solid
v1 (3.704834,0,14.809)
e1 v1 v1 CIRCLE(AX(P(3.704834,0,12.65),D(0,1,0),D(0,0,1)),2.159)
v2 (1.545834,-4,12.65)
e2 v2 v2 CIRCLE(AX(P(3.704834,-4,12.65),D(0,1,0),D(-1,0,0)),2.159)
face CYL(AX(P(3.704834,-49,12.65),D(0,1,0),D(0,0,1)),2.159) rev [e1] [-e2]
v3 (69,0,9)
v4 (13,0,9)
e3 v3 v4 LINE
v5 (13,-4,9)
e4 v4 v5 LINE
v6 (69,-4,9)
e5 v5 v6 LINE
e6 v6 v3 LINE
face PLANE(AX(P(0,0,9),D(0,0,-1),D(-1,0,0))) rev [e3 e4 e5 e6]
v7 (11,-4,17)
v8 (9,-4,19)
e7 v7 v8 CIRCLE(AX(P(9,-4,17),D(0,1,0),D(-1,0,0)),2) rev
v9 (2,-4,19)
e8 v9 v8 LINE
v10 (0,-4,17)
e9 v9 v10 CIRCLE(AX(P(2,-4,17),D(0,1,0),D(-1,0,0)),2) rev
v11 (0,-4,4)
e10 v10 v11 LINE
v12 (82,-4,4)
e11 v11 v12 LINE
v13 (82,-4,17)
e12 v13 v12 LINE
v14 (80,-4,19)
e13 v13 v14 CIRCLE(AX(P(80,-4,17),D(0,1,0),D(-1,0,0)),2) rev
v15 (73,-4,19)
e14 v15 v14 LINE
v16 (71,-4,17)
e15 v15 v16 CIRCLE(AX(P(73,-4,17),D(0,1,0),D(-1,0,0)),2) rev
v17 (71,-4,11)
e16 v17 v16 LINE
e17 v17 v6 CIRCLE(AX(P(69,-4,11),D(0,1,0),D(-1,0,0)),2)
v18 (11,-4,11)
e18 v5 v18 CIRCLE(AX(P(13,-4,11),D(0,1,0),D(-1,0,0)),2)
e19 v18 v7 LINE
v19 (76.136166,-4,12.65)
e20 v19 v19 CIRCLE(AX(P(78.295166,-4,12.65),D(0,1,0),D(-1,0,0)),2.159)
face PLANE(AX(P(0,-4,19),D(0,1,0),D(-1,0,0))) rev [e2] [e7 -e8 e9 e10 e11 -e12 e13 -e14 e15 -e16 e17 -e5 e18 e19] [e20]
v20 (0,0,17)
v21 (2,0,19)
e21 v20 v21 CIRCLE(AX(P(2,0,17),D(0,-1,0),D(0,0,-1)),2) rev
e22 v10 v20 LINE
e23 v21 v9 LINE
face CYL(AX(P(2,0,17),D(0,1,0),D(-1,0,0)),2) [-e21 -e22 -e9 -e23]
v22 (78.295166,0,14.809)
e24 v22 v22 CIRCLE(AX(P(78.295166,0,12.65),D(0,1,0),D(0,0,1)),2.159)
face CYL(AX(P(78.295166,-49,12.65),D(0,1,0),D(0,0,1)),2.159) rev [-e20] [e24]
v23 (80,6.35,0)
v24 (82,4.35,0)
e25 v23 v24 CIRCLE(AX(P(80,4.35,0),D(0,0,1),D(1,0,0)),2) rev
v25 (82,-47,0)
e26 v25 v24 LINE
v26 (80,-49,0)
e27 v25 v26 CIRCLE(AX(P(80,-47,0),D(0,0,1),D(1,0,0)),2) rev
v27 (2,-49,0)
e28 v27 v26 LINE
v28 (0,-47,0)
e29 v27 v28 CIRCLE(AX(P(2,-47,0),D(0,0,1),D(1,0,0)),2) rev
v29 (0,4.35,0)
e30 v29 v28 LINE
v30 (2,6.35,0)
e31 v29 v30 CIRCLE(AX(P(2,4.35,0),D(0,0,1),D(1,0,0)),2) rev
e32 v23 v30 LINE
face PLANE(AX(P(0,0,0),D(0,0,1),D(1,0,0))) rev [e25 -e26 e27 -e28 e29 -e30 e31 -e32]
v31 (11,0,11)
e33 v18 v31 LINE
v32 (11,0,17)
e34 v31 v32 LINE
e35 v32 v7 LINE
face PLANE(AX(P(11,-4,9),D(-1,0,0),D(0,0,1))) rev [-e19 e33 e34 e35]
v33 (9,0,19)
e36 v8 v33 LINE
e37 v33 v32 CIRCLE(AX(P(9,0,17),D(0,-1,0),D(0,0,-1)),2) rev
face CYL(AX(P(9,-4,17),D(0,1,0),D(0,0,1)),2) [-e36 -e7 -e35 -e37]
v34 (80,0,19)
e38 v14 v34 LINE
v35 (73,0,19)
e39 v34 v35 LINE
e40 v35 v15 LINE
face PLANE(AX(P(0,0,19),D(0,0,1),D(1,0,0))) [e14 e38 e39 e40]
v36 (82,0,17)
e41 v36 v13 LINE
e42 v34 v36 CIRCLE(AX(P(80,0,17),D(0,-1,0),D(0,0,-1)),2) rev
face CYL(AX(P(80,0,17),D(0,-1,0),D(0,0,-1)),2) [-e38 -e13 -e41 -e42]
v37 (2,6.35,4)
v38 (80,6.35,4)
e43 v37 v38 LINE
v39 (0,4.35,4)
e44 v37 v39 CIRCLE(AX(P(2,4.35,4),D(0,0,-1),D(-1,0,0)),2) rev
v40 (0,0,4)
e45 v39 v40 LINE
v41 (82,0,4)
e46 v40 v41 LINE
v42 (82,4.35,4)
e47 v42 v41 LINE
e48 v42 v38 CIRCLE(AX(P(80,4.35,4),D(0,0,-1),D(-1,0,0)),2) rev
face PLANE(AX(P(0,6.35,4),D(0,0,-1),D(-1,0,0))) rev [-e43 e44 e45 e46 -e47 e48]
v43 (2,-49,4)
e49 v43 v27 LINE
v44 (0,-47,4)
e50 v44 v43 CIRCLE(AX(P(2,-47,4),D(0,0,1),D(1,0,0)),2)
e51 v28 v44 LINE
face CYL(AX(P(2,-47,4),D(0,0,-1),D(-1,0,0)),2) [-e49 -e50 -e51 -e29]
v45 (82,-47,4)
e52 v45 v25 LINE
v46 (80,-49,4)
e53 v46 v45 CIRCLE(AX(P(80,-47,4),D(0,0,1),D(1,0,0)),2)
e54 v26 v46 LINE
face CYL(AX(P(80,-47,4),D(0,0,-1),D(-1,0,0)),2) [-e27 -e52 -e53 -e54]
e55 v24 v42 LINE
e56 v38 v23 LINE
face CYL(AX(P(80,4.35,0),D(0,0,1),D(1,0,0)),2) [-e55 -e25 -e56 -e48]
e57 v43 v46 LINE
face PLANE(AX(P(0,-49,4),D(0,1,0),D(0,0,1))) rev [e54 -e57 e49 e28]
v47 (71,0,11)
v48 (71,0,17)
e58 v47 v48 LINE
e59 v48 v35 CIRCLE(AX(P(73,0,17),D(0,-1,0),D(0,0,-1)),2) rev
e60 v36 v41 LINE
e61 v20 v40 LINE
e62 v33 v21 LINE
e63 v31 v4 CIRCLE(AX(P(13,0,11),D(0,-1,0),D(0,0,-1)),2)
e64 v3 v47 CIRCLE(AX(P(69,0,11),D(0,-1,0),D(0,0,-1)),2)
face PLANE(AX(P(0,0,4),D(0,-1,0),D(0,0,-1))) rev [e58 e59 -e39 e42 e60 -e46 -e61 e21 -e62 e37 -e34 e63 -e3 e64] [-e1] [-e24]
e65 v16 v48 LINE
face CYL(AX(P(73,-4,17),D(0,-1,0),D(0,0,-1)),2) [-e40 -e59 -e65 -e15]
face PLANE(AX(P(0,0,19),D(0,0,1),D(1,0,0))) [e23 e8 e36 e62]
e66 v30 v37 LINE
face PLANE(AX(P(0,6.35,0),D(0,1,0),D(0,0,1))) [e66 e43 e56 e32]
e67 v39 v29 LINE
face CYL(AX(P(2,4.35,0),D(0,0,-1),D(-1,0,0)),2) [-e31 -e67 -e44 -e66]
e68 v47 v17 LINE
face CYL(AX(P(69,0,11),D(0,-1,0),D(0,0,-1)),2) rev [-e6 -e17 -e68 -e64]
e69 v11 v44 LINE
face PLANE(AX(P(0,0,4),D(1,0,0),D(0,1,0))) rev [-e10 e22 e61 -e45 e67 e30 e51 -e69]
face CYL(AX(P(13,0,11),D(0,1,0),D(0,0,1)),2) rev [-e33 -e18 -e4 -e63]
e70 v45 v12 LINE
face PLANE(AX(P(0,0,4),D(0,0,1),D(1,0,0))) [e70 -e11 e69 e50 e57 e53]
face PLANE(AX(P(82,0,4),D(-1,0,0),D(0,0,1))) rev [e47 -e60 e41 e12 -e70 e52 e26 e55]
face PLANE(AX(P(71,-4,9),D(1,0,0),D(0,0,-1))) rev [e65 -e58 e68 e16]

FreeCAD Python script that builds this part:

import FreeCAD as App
import Part
import Sketcher
from FreeCAD import Vector


def edges_at(feature, points):
    """Names of the edges that pass closest to the given points."""
    edges = feature.Shape.Edges
    near = lambda p: min(range(len(edges)), key=lambda i: edges[i].distToShape(Part.Vertex(*p))[0])
    return sorted({f"Edge{near(p) + 1}" for p in points})

doc = App.newDocument("Part")
body = doc.addObject("PartDesign::Body", "Body")

# Sketch on XY plane
sketch1 = body.newObject("Sketcher::SketchObject", "Sketch")
sketch1.AttachmentSupport = (doc.getObject("XY_Plane"), [""])
sketch1.MapMode = "FlatFace"
sketch1.addGeometry([
    Part.LineSegment(Vector(0, 0, 0), Vector(0, -49, 0)),
    Part.LineSegment(Vector(0, -49, 0), Vector(82, -49, 0)),
    Part.LineSegment(Vector(82, -49, 0), Vector(82, 0, 0)),
    Part.LineSegment(Vector(82, 0, 0), Vector(0, 0, 0)),
], False)
sketch1.addConstraint([
    Sketcher.Constraint("Coincident", 0, 2, 1, 1),
    Sketcher.Constraint("Coincident", 1, 2, 2, 1),
    Sketcher.Constraint("Coincident", 2, 2, 3, 1),
    Sketcher.Constraint("Coincident", 3, 2, 0, 1),
    Sketcher.Constraint("Vertical", 0),
    Sketcher.Constraint("Horizontal", 1),
    Sketcher.Constraint("Vertical", 2),
    Sketcher.Constraint("Horizontal", 3),
    Sketcher.Constraint("Coincident", 3, 2, -1, 1),
    Sketcher.Constraint("DistanceX", 1, 1, 1, 2, 82.0),
    Sketcher.Constraint("DistanceY", 0, 2, 0, 1, 49.0),
])
pad1 = body.newObject("PartDesign::Pad", "Pad")
pad1.Profile = sketch1
pad1.Length = 4

# Sketch on XY plane
sketch2 = body.newObject("Sketcher::SketchObject", "Sketch001")
sketch2.AttachmentSupport = (doc.getObject("XY_Plane"), [""])
sketch2.MapMode = "FlatFace"
sketch2.AttachmentOffset = App.Placement(Vector(0, 0, 4), App.Rotation())
sketch2.addGeometry([
    Part.LineSegment(Vector(0, 0, 0), Vector(0, -4, 0)),
    Part.LineSegment(Vector(0, -4, 0), Vector(82, -4, 0)),
    Part.LineSegment(Vector(82, -4, 0), Vector(82, 0, 0)),
    Part.LineSegment(Vector(82, 0, 0), Vector(0, 0, 0)),
], False)
sketch2.addConstraint([
    Sketcher.Constraint("Coincident", 0, 2, 1, 1),
    Sketcher.Constraint("Coincident", 1, 2, 2, 1),
    Sketcher.Constraint("Coincident", 2, 2, 3, 1),
    Sketcher.Constraint("Coincident", 3, 2, 0, 1),
    Sketcher.Constraint("Vertical", 0),
    Sketcher.Constraint("Horizontal", 1),
    Sketcher.Constraint("Vertical", 2),
    Sketcher.Constraint("Horizontal", 3),
    Sketcher.Constraint("Coincident", 3, 2, -1, 1),
    Sketcher.Constraint("DistanceX", 1, 1, 1, 2, 82.0),
    Sketcher.Constraint("DistanceY", 0, 2, 0, 1, 4.0),
])
pad2 = body.newObject("PartDesign::Pad", "Pad001")
pad2.Profile = sketch2
pad2.Length = 15

# Sketch on XZ plane
sketch3 = body.newObject("Sketcher::SketchObject", "Sketch002")
sketch3.AttachmentSupport = (doc.getObject("XZ_Plane"), [""])
sketch3.MapMode = "FlatFace"
sketch3.addGeometry([
    Part.Circle(Vector(3.7, 12.7, 0), Vector(0, 0, 1), 2.2),
    Part.Circle(Vector(78.3, 12.7, 0), Vector(0, 0, 1), 2.2),
], False)
sketch3.addConstraint([
    Sketcher.Constraint("Equal", 0, 1),
    Sketcher.Constraint("Horizontal", 0, 3, 1, 3),
    Sketcher.Constraint("Diameter", 0, 4.318),
    Sketcher.Constraint("DistanceY", -1, 1, 0, 3, 12.65),
    Sketcher.Constraint("DistanceX", -1, 1, 0, 3, 3.704834),
    Sketcher.Constraint("DistanceX", -1, 1, 1, 3, 78.295166),
])
pocket1 = body.newObject("PartDesign::Pocket", "Pocket")
pocket1.Profile = sketch3
pocket1.Type = "ThroughAll"
pocket1.Reversed = True

# Sketch on XZ plane
sketch4 = body.newObject("Sketcher::SketchObject", "Sketch003")
sketch4.AttachmentSupport = (doc.getObject("XZ_Plane"), [""])
sketch4.MapMode = "FlatFace"
sketch4.addGeometry([
    Part.LineSegment(Vector(0, 0, 0), Vector(0, 4, 0)),
    Part.LineSegment(Vector(0, 4, 0), Vector(82, 4, 0)),
    Part.LineSegment(Vector(82, 4, 0), Vector(82, 0, 0)),
    Part.LineSegment(Vector(82, 0, 0), Vector(0, 0, 0)),
], False)
sketch4.addConstraint([
    Sketcher.Constraint("Coincident", 0, 2, 1, 1),
    Sketcher.Constraint("Coincident", 1, 2, 2, 1),
    Sketcher.Constraint("Coincident", 2, 2, 3, 1),
    Sketcher.Constraint("Coincident", 3, 2, 0, 1),
    Sketcher.Constraint("Vertical", 0),
    Sketcher.Constraint("Horizontal", 1),
    Sketcher.Constraint("Vertical", 2),
    Sketcher.Constraint("Horizontal", 3),
    Sketcher.Constraint("Coincident", 3, 2, -1, 1),
    Sketcher.Constraint("DistanceX", 1, 1, 1, 2, 82.0),
    Sketcher.Constraint("DistanceY", 0, 1, 0, 2, 4.0),
])
pad3 = body.newObject("PartDesign::Pad", "Pad002")
pad3.Profile = sketch4
pad3.Length = 6.35
pad3.Reversed = True

# Sketch on XY plane
sketch5 = body.newObject("Sketcher::SketchObject", "Sketch004")
sketch5.AttachmentSupport = (doc.getObject("XY_Plane"), [""])
sketch5.MapMode = "FlatFace"
sketch5.AttachmentOffset = App.Placement(Vector(0, 0, 19), App.Rotation())
sketch5.addGeometry([
    Part.LineSegment(Vector(11, 0, 0), Vector(11, -4, 0)),
    Part.LineSegment(Vector(11, -4, 0), Vector(71, -4, 0)),
    Part.LineSegment(Vector(71, -4, 0), Vector(71, 0, 0)),
    Part.LineSegment(Vector(71, 0, 0), Vector(11, 0, 0)),
], False)
sketch5.addConstraint([
    Sketcher.Constraint("Coincident", 0, 2, 1, 1),
    Sketcher.Constraint("Coincident", 1, 2, 2, 1),
    Sketcher.Constraint("Coincident", 2, 2, 3, 1),
    Sketcher.Constraint("Coincident", 3, 2, 0, 1),
    Sketcher.Constraint("Vertical", 0),
    Sketcher.Constraint("Horizontal", 1),
    Sketcher.Constraint("Vertical", 2),
    Sketcher.Constraint("Horizontal", 3),
    Sketcher.Constraint("PointOnObject", 2, 2, -1),
    Sketcher.Constraint("DistanceX", 1, 1, 1, 2, 60.0),
    Sketcher.Constraint("DistanceY", 0, 2, 0, 1, 4.0),
    Sketcher.Constraint("DistanceX", -1, 1, 0, 2, 11.0),
])
pocket2 = body.newObject("PartDesign::Pocket", "Pocket001")
pocket2.Profile = sketch5
pocket2.Length = 10
doc.recompute()

fillet = body.newObject("PartDesign::Fillet", "Fillet")
fillet.Base = (pocket2, edges_at(pocket2, [
    (0, -2, 19),
    (82, -2, 19),
    (0, 6.35, 2),
    (82, 6.35, 2),
    (71, -2, 9),
    (11, -2, 9),
    (71, -2, 19),
    (11, -2, 19),
    (82, -49, 2),
    (0, -49, 2),
]))
fillet.Radius = 2

doc.recompute()
